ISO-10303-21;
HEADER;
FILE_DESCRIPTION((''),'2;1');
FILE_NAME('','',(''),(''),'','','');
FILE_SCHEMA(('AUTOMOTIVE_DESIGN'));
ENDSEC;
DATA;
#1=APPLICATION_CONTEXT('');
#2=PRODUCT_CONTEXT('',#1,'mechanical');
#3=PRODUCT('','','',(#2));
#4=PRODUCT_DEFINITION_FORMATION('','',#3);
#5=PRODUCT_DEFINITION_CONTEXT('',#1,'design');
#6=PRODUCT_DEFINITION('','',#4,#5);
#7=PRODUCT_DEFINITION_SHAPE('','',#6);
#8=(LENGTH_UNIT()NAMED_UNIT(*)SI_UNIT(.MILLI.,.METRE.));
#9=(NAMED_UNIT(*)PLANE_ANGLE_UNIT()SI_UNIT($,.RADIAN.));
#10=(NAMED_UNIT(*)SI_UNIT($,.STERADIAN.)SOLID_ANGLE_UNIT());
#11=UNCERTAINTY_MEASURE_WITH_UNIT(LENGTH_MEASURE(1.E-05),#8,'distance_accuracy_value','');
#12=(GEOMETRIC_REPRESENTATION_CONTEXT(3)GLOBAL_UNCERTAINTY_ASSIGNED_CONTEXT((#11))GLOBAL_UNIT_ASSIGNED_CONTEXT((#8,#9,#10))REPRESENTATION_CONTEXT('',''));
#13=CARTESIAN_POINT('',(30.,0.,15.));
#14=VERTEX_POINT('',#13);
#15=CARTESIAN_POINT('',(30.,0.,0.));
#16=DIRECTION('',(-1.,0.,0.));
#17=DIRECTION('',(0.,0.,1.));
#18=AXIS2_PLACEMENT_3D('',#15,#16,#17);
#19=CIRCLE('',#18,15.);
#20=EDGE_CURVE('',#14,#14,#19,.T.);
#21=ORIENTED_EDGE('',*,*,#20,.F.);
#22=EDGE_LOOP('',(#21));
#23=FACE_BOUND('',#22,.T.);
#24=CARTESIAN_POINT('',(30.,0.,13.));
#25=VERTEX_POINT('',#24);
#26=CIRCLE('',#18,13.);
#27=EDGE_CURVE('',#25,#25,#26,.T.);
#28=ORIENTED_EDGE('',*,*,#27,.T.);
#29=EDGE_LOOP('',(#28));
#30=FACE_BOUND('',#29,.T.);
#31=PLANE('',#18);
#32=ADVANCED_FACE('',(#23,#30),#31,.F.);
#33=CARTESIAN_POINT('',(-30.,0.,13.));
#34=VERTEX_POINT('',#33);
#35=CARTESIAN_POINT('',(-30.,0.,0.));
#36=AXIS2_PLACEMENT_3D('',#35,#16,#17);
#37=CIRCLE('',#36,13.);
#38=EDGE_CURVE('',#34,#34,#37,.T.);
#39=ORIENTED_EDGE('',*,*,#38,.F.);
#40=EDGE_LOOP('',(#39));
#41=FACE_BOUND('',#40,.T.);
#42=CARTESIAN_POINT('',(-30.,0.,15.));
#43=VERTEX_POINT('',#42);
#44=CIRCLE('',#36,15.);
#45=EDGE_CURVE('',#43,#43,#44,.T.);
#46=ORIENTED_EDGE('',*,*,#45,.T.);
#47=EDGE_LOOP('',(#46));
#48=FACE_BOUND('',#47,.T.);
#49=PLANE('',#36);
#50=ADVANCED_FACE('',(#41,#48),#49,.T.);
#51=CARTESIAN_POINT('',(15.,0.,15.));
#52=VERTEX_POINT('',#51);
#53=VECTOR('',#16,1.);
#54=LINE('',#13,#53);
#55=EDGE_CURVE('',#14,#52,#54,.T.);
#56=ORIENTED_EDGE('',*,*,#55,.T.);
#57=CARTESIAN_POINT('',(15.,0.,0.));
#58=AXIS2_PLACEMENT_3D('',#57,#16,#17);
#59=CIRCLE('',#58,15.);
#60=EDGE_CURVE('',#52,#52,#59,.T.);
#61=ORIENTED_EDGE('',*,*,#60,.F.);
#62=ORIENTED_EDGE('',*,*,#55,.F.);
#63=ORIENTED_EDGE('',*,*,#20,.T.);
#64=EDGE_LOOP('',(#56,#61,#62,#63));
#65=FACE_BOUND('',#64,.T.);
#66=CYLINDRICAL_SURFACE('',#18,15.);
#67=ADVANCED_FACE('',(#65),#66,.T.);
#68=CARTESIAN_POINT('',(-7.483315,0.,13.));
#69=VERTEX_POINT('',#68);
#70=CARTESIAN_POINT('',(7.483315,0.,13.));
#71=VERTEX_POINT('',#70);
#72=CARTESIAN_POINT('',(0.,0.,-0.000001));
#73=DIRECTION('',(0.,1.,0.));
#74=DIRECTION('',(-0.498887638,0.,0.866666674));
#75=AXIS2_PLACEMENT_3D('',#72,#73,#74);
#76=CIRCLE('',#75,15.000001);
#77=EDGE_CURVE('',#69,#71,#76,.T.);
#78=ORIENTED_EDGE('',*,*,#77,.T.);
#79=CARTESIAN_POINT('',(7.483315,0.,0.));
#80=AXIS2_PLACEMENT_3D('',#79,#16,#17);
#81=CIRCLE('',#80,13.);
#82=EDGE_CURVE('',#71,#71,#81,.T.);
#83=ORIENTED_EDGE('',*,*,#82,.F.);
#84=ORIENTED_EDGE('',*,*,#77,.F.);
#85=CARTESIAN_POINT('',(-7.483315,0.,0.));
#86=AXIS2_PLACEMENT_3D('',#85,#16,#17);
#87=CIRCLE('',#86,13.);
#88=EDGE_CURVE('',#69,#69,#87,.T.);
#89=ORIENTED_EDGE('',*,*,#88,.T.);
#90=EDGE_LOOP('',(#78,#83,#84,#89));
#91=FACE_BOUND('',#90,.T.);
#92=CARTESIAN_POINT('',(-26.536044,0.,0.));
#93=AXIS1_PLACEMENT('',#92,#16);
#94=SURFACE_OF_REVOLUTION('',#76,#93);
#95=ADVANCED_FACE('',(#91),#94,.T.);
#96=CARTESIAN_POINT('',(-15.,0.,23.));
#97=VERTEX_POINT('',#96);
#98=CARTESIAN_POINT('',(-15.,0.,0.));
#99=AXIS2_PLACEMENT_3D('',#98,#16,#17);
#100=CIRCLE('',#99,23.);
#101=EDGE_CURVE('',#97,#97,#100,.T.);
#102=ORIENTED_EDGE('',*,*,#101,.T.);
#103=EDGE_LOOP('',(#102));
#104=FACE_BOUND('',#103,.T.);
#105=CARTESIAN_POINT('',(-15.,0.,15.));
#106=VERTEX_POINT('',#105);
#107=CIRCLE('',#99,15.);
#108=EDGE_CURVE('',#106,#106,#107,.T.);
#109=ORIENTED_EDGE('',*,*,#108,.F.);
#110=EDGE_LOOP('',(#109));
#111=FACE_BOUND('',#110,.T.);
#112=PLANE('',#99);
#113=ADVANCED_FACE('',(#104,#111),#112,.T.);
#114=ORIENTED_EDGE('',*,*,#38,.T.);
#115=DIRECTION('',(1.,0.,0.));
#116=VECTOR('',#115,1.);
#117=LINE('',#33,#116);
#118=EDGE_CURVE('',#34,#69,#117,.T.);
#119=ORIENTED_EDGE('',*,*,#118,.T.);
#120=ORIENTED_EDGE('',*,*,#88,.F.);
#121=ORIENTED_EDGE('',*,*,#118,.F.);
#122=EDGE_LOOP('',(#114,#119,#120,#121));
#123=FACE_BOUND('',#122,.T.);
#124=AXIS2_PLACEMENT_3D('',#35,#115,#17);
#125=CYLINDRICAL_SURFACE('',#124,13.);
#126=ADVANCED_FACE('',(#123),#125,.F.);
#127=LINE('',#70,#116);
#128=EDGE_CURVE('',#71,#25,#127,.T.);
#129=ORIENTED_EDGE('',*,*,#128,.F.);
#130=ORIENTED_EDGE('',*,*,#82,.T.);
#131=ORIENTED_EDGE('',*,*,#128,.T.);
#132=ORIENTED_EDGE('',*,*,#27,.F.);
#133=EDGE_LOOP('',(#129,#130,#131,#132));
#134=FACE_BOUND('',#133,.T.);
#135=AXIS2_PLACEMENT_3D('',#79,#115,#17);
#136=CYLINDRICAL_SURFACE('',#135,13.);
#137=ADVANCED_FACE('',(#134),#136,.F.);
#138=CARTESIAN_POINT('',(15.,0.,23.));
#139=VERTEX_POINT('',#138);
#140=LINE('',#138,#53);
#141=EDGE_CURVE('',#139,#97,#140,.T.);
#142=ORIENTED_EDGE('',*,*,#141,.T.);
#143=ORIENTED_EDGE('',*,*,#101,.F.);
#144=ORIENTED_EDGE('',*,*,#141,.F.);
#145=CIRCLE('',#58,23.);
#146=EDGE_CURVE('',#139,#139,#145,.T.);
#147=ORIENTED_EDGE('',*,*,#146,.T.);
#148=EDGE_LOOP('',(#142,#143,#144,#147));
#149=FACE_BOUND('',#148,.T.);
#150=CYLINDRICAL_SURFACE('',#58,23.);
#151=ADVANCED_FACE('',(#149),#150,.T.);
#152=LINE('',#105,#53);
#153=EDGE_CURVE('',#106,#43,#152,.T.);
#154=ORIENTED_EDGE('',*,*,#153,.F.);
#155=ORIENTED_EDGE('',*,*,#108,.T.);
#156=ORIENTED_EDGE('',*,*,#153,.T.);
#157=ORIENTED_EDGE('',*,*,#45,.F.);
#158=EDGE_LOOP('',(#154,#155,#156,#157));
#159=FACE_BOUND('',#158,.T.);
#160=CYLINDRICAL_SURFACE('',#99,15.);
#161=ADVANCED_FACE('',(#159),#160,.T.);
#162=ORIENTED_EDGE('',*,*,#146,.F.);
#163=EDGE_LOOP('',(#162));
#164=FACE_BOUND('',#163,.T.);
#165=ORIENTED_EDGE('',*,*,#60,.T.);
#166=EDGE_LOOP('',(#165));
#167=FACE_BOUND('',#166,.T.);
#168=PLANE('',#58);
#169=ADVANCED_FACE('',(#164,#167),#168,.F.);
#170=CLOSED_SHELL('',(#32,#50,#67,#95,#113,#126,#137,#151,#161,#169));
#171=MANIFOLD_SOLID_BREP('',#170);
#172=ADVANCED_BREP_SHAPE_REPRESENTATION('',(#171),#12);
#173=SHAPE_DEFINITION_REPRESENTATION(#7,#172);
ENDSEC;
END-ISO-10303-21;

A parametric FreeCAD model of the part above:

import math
import FreeCAD as App
import Part
import Sketcher

V = App.Vector

doc = App.newDocument("Part")
body = doc.addObject("PartDesign::Body", "Body")

sketch1 = doc.addObject("Sketcher::SketchObject", "Sketch")
body.addObject(sketch1)
sketch1.AttachmentSupport = (doc.XZ_Plane, [""])
sketch1.MapMode = "FlatFace"
sketch1.addGeometry([
    Part.LineSegment(V(-30, 13, 0), V(-7.5, 13, 0)),
    Part.ArcOfCircle(Part.Circle(V(0, 0, 0), V(0, 0, 1), 15), math.radians(60), math.radians(120)),
    Part.LineSegment(V(7.5, 13, 0), V(30, 13, 0)),
    Part.LineSegment(V(30, 13, 0), V(30, 15, 0)),
    Part.LineSegment(V(30, 15, 0), V(15, 15, 0)),
    Part.LineSegment(V(15, 15, 0), V(15, 23, 0)),
    Part.LineSegment(V(15, 23, 0), V(-15, 23, 0)),
    Part.LineSegment(V(-15, 23, 0), V(-15, 15, 0)),
    Part.LineSegment(V(-15, 15, 0), V(-30, 15, 0)),
    Part.LineSegment(V(-30, 15, 0), V(-30, 13, 0)),
], False)
sketch1.addConstraint([
    Sketcher.Constraint("Coincident", 0, 2, 1, 2),
    Sketcher.Constraint("Coincident", 1, 1, 2, 1),
    Sketcher.Constraint("Coincident", 2, 2, 3, 1),
    Sketcher.Constraint("Coincident", 3, 2, 4, 1),
    Sketcher.Constraint("Coincident", 4, 2, 5, 1),
    Sketcher.Constraint("Coincident", 5, 2, 6, 1),
    Sketcher.Constraint("Coincident", 6, 2, 7, 1),
    Sketcher.Constraint("Coincident", 7, 2, 8, 1),
    Sketcher.Constraint("Coincident", 8, 2, 9, 1),
    Sketcher.Constraint("Coincident", 9, 2, 0, 1),
    Sketcher.Constraint("Horizontal", 0),
    Sketcher.Constraint("Horizontal", 2),
    Sketcher.Constraint("Vertical", 3),
    Sketcher.Constraint("Horizontal", 4),
    Sketcher.Constraint("Vertical", 5),
    Sketcher.Constraint("Horizontal", 6),
    Sketcher.Constraint("Vertical", 7),
    Sketcher.Constraint("Horizontal", 8),
    Sketcher.Constraint("Vertical", 9),
    Sketcher.Constraint("Coincident", 1, 3, -1, 1),
    Sketcher.Constraint("Symmetric", 4, 2, 7, 2, -2),
    Sketcher.Constraint("Symmetric", 2, 2, 9, 2, -2),
    Sketcher.Constraint("Radius", 1, 15.000001),
    Sketcher.Constraint("DistanceX", 4, 2, 4, 1, 15.0),
    Sketcher.Constraint("DistanceX", 6, 2, 6, 1, 30.0),
    Sketcher.Constraint("DistanceY", 3, 1, 3, 2, 2.0),
    Sketcher.Constraint("DistanceY", 5, 1, 5, 2, 8.0),
    Sketcher.Constraint("DistanceY", -1, 1, 0, 2, 13.0),
])
revolution = doc.addObject("PartDesign::Revolution", "Revolution")
body.addObject(revolution)
revolution.Profile = sketch1
revolution.ReferenceAxis = (sketch1, ["H_Axis"])
revolution.Angle = 360

doc.recompute()
